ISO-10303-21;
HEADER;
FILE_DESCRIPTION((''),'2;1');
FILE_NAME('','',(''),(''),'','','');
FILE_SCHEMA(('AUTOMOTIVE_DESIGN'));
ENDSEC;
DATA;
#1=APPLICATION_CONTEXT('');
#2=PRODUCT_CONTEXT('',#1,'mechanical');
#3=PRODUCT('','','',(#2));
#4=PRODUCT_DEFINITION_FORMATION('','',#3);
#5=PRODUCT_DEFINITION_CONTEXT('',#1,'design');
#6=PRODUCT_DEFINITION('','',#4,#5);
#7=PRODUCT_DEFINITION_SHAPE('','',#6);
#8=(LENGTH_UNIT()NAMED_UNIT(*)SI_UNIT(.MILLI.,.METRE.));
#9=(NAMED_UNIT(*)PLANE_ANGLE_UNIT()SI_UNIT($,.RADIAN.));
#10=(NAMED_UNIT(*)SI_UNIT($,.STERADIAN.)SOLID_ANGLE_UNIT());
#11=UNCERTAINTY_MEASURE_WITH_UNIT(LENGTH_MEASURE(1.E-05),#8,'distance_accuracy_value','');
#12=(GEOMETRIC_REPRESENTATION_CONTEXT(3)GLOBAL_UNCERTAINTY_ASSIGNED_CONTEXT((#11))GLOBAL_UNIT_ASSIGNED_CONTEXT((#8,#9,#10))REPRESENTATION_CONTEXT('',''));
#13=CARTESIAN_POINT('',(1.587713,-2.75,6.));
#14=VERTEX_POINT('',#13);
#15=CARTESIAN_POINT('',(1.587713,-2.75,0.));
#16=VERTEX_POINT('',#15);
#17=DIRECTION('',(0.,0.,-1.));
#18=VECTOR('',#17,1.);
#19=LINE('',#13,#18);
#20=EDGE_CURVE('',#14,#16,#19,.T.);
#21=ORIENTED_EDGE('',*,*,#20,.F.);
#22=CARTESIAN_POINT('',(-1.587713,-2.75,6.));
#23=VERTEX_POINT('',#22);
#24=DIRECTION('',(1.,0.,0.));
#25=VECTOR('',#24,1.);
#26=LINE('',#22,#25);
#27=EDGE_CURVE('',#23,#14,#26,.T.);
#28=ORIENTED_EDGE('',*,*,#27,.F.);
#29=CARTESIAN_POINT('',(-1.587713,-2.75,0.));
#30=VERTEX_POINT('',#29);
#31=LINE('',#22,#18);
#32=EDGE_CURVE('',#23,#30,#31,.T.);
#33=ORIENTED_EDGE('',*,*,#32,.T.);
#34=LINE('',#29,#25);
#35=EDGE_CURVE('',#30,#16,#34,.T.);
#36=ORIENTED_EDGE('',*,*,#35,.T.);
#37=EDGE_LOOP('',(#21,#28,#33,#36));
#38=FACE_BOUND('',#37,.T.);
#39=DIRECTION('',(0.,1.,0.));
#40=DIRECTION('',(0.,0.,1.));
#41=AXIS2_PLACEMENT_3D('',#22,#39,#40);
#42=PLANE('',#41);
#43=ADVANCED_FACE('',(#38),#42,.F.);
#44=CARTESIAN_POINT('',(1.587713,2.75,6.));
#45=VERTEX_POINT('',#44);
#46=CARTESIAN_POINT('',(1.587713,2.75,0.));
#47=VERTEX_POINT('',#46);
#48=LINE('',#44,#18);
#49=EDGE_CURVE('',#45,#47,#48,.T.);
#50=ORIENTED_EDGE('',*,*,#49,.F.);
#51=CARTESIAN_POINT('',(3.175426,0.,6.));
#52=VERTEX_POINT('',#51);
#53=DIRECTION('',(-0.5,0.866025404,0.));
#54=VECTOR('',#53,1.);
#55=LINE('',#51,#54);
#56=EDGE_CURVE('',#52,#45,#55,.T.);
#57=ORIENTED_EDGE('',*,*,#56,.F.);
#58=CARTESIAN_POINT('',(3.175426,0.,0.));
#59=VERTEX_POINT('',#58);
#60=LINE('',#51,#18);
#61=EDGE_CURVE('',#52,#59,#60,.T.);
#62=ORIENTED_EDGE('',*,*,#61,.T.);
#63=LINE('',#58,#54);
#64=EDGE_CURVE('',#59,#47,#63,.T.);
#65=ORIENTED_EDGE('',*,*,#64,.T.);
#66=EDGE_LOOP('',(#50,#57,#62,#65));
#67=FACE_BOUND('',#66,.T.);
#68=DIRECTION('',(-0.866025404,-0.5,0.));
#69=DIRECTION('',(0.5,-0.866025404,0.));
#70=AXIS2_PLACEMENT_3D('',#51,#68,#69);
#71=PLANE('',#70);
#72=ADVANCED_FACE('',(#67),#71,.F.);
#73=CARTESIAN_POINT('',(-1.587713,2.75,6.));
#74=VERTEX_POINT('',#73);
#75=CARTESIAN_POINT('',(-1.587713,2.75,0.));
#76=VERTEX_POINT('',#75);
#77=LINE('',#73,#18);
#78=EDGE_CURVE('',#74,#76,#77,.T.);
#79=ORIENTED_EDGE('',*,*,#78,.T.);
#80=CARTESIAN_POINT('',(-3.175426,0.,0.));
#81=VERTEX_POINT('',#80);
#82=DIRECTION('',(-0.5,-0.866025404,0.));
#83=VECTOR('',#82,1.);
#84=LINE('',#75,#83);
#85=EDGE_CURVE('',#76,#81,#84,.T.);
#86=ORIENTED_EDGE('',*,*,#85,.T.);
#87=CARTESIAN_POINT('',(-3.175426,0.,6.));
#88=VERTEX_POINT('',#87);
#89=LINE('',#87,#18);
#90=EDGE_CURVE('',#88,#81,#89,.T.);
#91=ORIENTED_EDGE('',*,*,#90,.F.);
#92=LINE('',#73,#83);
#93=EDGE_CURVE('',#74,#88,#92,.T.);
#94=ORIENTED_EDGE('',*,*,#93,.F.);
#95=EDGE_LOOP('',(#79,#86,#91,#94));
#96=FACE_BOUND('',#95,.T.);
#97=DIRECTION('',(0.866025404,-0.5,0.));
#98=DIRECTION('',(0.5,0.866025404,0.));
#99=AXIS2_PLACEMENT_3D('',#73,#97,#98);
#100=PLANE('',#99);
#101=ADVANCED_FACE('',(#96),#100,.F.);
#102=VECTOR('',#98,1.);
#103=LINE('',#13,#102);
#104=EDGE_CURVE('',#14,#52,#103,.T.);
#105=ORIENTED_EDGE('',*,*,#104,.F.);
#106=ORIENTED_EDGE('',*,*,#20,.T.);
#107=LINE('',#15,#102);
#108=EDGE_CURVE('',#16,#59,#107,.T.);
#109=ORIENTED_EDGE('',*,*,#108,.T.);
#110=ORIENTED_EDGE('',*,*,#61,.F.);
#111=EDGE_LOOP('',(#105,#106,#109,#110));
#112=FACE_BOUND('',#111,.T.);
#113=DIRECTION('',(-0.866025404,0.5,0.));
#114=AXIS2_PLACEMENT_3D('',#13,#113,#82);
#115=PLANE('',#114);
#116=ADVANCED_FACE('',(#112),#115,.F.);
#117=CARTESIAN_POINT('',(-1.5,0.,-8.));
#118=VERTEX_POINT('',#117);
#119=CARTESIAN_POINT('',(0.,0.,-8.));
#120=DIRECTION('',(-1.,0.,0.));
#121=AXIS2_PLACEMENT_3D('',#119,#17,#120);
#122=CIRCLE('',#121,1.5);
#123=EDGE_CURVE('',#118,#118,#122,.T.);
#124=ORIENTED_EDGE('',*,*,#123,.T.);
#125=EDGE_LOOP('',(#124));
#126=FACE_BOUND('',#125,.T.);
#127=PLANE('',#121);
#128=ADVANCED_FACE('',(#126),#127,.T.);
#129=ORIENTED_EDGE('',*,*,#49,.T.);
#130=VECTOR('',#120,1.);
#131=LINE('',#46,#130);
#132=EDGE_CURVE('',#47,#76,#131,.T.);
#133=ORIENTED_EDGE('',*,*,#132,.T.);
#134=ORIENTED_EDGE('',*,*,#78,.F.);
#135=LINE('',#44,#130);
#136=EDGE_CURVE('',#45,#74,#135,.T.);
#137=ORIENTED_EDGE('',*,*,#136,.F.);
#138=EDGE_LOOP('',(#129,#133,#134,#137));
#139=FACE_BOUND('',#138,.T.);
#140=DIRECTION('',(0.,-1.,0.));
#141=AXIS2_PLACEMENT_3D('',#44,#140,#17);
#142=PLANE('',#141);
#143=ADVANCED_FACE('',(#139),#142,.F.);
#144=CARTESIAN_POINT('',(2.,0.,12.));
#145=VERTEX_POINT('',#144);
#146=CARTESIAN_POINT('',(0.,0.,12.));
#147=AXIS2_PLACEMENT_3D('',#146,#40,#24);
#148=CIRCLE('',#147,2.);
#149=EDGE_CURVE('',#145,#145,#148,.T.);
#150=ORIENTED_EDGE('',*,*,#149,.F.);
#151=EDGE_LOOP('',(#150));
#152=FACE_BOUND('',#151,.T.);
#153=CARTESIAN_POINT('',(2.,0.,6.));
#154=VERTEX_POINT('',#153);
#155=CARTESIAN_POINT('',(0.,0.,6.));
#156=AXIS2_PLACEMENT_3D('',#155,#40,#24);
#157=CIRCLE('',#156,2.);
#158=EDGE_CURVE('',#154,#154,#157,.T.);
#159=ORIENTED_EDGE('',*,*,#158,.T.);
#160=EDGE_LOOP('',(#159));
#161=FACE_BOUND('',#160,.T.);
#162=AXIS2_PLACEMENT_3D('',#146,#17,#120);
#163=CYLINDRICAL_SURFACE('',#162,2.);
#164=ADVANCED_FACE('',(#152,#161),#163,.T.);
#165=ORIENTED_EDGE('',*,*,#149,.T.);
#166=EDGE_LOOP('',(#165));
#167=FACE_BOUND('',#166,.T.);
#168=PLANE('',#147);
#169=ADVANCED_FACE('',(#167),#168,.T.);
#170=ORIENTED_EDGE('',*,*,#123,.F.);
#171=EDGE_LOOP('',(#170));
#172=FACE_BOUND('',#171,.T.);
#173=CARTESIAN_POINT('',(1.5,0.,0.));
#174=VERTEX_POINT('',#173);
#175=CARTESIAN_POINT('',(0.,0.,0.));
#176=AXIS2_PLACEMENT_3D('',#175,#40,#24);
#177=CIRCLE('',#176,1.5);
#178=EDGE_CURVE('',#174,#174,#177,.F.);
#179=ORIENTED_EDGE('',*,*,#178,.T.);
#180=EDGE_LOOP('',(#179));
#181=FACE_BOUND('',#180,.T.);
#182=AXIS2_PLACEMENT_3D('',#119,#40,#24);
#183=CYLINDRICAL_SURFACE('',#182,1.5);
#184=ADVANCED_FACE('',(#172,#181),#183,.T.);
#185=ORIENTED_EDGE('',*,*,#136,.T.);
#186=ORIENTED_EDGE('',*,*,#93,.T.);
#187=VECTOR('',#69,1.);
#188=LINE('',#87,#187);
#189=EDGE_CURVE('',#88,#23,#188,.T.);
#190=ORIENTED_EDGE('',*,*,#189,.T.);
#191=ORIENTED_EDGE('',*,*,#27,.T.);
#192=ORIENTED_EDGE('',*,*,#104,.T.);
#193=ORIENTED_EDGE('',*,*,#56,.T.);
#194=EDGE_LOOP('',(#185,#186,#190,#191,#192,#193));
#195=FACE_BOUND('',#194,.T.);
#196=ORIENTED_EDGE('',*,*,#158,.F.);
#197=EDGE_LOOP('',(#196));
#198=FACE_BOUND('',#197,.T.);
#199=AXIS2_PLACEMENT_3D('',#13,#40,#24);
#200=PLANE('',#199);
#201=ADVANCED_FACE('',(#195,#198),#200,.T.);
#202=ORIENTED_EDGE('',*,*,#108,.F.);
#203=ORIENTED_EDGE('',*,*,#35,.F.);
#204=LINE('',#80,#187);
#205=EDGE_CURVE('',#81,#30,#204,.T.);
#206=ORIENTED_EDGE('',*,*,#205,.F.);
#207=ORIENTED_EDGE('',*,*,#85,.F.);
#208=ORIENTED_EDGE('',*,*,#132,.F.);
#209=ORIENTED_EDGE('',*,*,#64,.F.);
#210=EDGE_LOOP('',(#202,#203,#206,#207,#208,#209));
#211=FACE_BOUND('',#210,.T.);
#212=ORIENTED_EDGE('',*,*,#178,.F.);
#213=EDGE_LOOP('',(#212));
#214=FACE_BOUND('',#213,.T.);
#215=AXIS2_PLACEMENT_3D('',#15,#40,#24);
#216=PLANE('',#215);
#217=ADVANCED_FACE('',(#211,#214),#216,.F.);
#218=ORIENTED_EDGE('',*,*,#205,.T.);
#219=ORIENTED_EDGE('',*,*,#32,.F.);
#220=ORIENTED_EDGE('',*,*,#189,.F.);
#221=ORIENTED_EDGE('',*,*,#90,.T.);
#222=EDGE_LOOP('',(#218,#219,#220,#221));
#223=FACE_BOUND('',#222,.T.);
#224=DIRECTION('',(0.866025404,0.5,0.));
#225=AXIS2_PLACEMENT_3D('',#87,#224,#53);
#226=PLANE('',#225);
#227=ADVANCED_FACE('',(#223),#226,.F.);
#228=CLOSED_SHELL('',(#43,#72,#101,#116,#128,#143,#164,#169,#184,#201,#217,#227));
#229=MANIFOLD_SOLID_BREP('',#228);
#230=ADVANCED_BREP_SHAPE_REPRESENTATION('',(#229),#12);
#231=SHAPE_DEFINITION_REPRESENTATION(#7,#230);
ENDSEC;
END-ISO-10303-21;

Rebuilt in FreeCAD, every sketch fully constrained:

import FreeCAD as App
import Part
import Sketcher
from FreeCAD import Vector
Q = App.Units.Quantity

doc = App.newDocument("Part")
params = doc.addObject("Spreadsheet::Sheet", "Params")
for row, (alias, value) in enumerate([
    ("pad1_length", "6 mm"),
    ("sketch2_diameter", "4 mm"),
    ("pad2_length", "6 mm"),
    ("sketch3_diameter", "3 mm"),
    ("pad3_length", "8 mm"),
], start=1):
    params.set(f"A{row}", alias)
    params.set(f"B{row}", "=" + value)
    params.setAlias(f"B{row}", alias)

body = doc.addObject("PartDesign::Body", "Body")

# Sketch on XY plane
sketch1 = body.newObject("Sketcher::SketchObject", "Sketch")
sketch1.AttachmentSupport = (doc.getObject("XY_Plane"), [""])
sketch1.MapMode = "FlatFace"
sketch1.addGeometry(Part.LineSegment(Vector(1.6, -2.8, 0), Vector(3.2, 0, 0)), False)
sketch1.addGeometry(Part.LineSegment(Vector(3.2, 0, 0), Vector(1.6, 2.8, 0)), False)
sketch1.addGeometry(Part.LineSegment(Vector(1.6, 2.8, 0), Vector(-1.6, 2.8, 0)), False)
sketch1.addGeometry(Part.LineSegment(Vector(-1.6, 2.8, 0), Vector(-3.2, 0, 0)), False)
sketch1.addGeometry(Part.LineSegment(Vector(-3.2, 0, 0), Vector(-1.6, -2.8, 0)), False)
sketch1.addGeometry(Part.LineSegment(Vector(-1.6, -2.8, 0), Vector(1.6, -2.8, 0)), False)
sketch1.addConstraint(Sketcher.Constraint("Coincident", 0, 2, 1, 1))
sketch1.addConstraint(Sketcher.Constraint("Coincident", 1, 2, 2, 1))
sketch1.addConstraint(Sketcher.Constraint("Coincident", 2, 2, 3, 1))
sketch1.addConstraint(Sketcher.Constraint("Coincident", 3, 2, 4, 1))
sketch1.addConstraint(Sketcher.Constraint("Coincident", 4, 2, 5, 1))
sketch1.addConstraint(Sketcher.Constraint("Coincident", 5, 2, 0, 1))
sketch1.addConstraint(Sketcher.Constraint("Horizontal", 2))
sketch1.addConstraint(Sketcher.Constraint("Horizontal", 5))
sketch1.addConstraint(Sketcher.Constraint("Symmetric", 0, 2, 3, 2, -1, 1))
sketch1.addConstraint(Sketcher.Constraint("Symmetric", 1, 2, 4, 2, -1, 1))
sketch1.addConstraint(Sketcher.Constraint("PointOnObject", 0, 2, -1))
sketch1.addConstraint(Sketcher.Constraint("Parallel", 0, 3))
sketch1.addConstraint(Sketcher.Constraint("Vertical", 2, 2, 4, 2))
sketch1.addConstraint(Sketcher.Constraint("Angle", 0, Q("60 deg")))
sketch1.addConstraint(Sketcher.Constraint("DistanceY", 4, 2, 2, 2, 5.5))
sketch1.addConstraint(Sketcher.Constraint("DistanceX", 2, 2, 2, 1, 3.175426))
pad1 = body.newObject("PartDesign::Pad", "Pad")
pad1.Profile = sketch1
pad1.setExpression("Length", "Params.pad1_length")

# Sketch on XY plane
sketch2 = body.newObject("Sketcher::SketchObject", "Sketch001")
sketch2.AttachmentSupport = (doc.getObject("XY_Plane"), [""])
sketch2.MapMode = "FlatFace"
sketch2.AttachmentOffset = App.Placement(Vector(0, 0, 6), App.Rotation())
sketch2.addGeometry(Part.Circle(Vector(0, 0, 0), Vector(0, 0, 1), 2), False)
sketch2.addConstraint(Sketcher.Constraint("Coincident", 0, 3, -1, 1))
sketch2.addConstraint(Sketcher.Constraint("Diameter", 0, 4.0))
sketch2.setExpression("Constraints[1]", "Params.sketch2_diameter")
pad2 = body.newObject("PartDesign::Pad", "Pad001")
pad2.Profile = sketch2
pad2.setExpression("Length", "Params.pad2_length")

# Sketch on XY plane
sketch3 = body.newObject("Sketcher::SketchObject", "Sketch002")
sketch3.AttachmentSupport = (doc.getObject("XY_Plane"), [""])
sketch3.MapMode = "FlatFace"
sketch3.addGeometry(Part.Circle(Vector(0, 0, 0), Vector(0, 0, 1), 1.5), False)
sketch3.addConstraint(Sketcher.Constraint("Coincident", 0, 3, -1, 1))
sketch3.addConstraint(Sketcher.Constraint("Diameter", 0, 3.0))
sketch3.setExpression("Constraints[1]", "Params.sketch3_diameter")
pad3 = body.newObject("PartDesign::Pad", "Pad002")
pad3.Profile = sketch3
pad3.setExpression("Length", "Params.pad3_length")
pad3.Reversed = True

doc.recompute()
